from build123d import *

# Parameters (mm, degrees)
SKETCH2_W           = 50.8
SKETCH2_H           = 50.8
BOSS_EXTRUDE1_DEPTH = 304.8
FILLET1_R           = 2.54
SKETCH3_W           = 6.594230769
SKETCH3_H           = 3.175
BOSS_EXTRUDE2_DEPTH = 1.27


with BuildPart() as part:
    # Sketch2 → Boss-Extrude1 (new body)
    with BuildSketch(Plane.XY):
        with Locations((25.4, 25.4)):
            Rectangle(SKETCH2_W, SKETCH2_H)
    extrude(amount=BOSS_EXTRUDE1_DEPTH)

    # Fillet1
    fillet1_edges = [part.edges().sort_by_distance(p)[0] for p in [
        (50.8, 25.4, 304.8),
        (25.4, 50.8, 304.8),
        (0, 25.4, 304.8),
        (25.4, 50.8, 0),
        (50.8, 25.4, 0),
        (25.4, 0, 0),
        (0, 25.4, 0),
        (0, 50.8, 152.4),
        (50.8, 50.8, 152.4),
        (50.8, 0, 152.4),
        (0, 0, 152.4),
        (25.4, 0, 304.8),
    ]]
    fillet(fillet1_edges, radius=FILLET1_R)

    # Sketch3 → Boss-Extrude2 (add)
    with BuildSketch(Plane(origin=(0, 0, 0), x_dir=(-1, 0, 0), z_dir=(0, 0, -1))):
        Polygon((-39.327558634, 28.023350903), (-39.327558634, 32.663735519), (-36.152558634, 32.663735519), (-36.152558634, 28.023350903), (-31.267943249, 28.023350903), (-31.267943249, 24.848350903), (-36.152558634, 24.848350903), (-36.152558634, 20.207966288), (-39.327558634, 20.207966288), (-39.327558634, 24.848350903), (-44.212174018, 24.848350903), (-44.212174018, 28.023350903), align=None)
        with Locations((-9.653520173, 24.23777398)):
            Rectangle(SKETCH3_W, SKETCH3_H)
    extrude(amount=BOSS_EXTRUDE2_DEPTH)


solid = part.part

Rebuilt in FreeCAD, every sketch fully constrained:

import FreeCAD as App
import Part
import Sketcher
Q = App.Units.Quantity


def add_polygon(sketch, points):
    """Adds a closed chain of lines whose ends are joined by coincident constraints."""
    first, n = sketch.GeometryCount, len(points)
    for a, b in zip(points, points[1:] + points[:1]):
        sketch.addGeometry(Part.LineSegment(App.Vector(*a, 0), App.Vector(*b, 0)), False)
    for i in range(n):
        sketch.addConstraint(Sketcher.Constraint("Coincident", first + i, 2, first + (i + 1) % n, 1))

doc = App.newDocument("Part")
body = doc.addObject("PartDesign::Body", "Body")

sketch1 = body.newObject("Sketcher::SketchObject", "Sketch")
sketch1.AttachmentSupport = (doc.getObject("XY_Plane"), [""])
sketch1.MapMode = "FlatFace"
add_polygon(sketch1, [(0, 50.8), (0, 0), (50.8, 0), (50.8, 50.8)])
sketch1.addConstraint([
    Sketcher.Constraint("Vertical", 0),
    Sketcher.Constraint("Horizontal", 1),
    Sketcher.Constraint("Vertical", 2),
    Sketcher.Constraint("Horizontal", 3),
    Sketcher.Constraint("Coincident", 0, 2, -1, 1),
    Sketcher.Constraint("Equal", 3, 0),
    Sketcher.Constraint("DistanceX", 1, 1, 1, 2, Q("2 in")),
])
pad1 = body.newObject("PartDesign::Pad", "Pad")
pad1.Profile = sketch1
pad1.Length = Q("12 in")
doc.recompute()

fillet = body.newObject("PartDesign::Fillet", "Fillet")
fillet.Base = (pad1, ["Edge1"])
fillet.UseAllEdges = True
fillet.Radius = Q("0.1 in")

sketch2 = body.newObject("Sketcher::SketchObject", "Sketch001")
sketch2.AttachmentSupport = (doc.getObject("XY_Plane"), [""])
sketch2.MapMode = "FlatFace"
add_polygon(sketch2, [(39.327559, 32.663736), (39.327559, 28.023351), (44.212174, 28.023351), (44.212174, 24.848351), (39.327559, 24.848351), (39.327559, 20.207966), (36.152559, 20.207966), (36.152559, 24.848351), (31.267943, 24.848351), (31.267943, 28.023351), (36.152559, 28.023351), (36.152559, 32.663736)])
add_polygon(sketch2, [(12.950636, 25.825274), (12.950636, 22.650274), (6.356405, 22.650274), (6.356405, 25.825274)])
sketch2.addConstraint([
    Sketcher.Constraint("Vertical", 0),
    Sketcher.Constraint("Horizontal", 1),
    Sketcher.Constraint("Vertical", 2),
    Sketcher.Constraint("Horizontal", 3),
    Sketcher.Constraint("Vertical", 4),
    Sketcher.Constraint("Horizontal", 5),
    Sketcher.Constraint("Vertical", 6),
    Sketcher.Constraint("Horizontal", 7),
    Sketcher.Constraint("Vertical", 8),
    Sketcher.Constraint("Horizontal", 9),
    Sketcher.Constraint("Vertical", 10),
    Sketcher.Constraint("Horizontal", 11),
    Sketcher.Constraint("Vertical", 12),
    Sketcher.Constraint("Horizontal", 13),
    Sketcher.Constraint("Vertical", 14),
    Sketcher.Constraint("Horizontal", 15),
    Sketcher.Constraint("Horizontal", 3, 2, 6, 2),
    Sketcher.Constraint("Horizontal", 1, 2, 8, 2),
    Sketcher.Constraint("Vertical", 0, 2, 3, 2),
    Sketcher.Constraint("Vertical", 6, 2, 9, 2),
    Sketcher.Constraint("Equal", 3, 7),
    Sketcher.Constraint("Equal", 11, 2),
    Sketcher.Constraint("Equal", 0, 4),
    Sketcher.Constraint("Equal", 8, 12),
    Sketcher.Constraint("DistanceX", 5, 2, 5, 1, Q("0.125 in")),
    Sketcher.Constraint("DistanceX", 13, 2, 13, 1, 6.594231),
    Sketcher.Constraint("DistanceX", 1, 1, 1, 2, 4.884615),
    Sketcher.Constraint("DistanceY", 0, 2, 0, 1, 4.640385),
    Sketcher.Constraint("DistanceX", -1, 1, 0, 2, 39.327559),
    Sketcher.Constraint("DistanceY", -1, 1, 0, 2, 28.023351),
    Sketcher.Constraint("DistanceX", 13, 2, 7, 2, 24.911538),
    Sketcher.Constraint("DistanceY", -1, 1, 12, 2, 22.650274),
])
pad2 = body.newObject("PartDesign::Pad", "Pad001")
pad2.Profile = sketch2
pad2.Length = Q("0.05 in")
pad2.Reversed = True

doc.recompute()
